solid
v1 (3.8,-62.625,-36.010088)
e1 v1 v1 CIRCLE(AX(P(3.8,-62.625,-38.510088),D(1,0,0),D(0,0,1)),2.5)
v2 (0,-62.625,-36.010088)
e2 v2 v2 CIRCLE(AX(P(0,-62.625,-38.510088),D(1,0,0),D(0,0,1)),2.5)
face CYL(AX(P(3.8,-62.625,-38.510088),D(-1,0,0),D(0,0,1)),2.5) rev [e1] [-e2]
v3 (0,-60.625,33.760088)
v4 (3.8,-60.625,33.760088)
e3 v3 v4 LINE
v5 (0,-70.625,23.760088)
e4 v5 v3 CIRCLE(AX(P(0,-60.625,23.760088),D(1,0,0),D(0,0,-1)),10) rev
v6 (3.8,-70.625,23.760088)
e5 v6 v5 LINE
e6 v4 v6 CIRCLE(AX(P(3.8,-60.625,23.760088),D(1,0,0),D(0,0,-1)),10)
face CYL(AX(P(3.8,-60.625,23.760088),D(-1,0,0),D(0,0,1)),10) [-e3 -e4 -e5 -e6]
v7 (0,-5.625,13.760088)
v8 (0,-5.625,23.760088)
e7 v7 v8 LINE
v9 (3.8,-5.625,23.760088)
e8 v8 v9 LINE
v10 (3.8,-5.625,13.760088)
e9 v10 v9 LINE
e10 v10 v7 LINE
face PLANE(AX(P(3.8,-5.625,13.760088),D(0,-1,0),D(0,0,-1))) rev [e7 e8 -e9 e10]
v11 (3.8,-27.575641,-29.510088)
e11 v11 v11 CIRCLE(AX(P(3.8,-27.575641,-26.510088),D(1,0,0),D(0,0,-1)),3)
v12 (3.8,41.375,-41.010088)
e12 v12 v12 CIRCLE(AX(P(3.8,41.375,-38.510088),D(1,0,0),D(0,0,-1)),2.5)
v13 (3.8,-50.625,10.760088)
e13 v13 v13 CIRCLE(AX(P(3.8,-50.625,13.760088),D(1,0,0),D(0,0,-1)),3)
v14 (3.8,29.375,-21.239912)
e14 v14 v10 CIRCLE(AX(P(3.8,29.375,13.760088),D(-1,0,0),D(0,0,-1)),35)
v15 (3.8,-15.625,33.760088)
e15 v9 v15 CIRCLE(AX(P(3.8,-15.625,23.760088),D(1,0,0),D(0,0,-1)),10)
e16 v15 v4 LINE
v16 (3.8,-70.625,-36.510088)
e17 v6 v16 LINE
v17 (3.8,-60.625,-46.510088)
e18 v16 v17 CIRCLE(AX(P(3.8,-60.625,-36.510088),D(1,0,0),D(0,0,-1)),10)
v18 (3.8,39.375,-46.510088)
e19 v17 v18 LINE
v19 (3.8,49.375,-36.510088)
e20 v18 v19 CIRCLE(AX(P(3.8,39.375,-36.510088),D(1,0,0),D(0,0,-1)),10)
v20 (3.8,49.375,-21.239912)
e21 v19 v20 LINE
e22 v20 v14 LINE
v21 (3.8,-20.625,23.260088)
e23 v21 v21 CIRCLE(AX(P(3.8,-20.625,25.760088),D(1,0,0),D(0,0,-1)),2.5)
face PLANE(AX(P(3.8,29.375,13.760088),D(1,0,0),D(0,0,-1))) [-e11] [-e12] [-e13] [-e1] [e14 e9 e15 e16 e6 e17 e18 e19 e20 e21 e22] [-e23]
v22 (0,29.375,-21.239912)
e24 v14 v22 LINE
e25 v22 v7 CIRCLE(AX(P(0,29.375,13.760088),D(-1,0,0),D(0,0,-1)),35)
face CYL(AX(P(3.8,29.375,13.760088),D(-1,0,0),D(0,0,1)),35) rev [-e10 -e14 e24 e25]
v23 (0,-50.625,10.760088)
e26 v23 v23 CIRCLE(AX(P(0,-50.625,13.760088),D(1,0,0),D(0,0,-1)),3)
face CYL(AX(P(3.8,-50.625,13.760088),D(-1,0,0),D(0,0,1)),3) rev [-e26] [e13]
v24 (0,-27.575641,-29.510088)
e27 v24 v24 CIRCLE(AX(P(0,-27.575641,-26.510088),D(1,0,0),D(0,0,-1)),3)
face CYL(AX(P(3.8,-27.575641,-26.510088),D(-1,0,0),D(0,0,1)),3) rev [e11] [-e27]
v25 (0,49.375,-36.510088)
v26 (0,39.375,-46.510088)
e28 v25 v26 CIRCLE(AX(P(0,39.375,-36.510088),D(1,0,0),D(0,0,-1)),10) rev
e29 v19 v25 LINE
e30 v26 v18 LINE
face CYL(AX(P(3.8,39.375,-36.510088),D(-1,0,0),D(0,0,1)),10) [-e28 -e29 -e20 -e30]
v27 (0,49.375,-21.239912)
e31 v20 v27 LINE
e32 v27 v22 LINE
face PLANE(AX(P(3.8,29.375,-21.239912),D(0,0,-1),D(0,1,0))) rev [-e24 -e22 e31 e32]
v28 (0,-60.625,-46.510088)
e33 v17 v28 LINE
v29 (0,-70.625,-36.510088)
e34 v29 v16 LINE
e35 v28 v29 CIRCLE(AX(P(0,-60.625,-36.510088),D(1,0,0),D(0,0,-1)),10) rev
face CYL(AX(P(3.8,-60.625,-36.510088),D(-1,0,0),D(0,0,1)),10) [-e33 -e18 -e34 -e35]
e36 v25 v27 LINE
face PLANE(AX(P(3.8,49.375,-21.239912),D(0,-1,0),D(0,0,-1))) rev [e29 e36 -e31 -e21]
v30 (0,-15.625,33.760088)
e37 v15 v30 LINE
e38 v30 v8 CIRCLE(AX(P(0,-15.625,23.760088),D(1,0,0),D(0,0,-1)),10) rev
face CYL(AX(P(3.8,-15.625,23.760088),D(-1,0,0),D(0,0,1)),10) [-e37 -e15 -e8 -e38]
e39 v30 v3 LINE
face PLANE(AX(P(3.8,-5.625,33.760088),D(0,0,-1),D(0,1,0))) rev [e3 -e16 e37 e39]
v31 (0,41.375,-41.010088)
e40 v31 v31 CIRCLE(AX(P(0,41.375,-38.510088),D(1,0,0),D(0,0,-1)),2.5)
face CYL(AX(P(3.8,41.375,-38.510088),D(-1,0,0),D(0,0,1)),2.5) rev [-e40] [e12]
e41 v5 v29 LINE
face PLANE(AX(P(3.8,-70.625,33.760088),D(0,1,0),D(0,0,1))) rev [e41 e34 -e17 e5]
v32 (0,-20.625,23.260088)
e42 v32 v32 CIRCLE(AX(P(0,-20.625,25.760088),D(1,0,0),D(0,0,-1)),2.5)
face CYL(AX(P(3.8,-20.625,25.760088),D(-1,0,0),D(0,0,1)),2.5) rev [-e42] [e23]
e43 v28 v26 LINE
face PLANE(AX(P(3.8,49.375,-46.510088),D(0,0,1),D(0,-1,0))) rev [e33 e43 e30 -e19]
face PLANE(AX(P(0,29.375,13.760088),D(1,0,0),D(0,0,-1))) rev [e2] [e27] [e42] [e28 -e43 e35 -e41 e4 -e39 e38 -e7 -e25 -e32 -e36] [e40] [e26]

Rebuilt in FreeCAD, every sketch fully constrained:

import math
import FreeCAD as App
import Part
import Sketcher
from FreeCAD import Vector


def edges_at(feature, points):
    """Names of the edges that pass closest to the given points."""
    edges = feature.Shape.Edges
    near = lambda p: min(range(len(edges)), key=lambda i: edges[i].distToShape(Part.Vertex(*p))[0])
    return sorted({f"Edge{near(p) + 1}" for p in points})

doc = App.newDocument("Part")
params = doc.addObject("Spreadsheet::Sheet", "Params")
for row, (alias, value) in enumerate([
    ("sketch1_diameter", "6 mm"),
    ("sketch1_diameter2", "5 mm"),
    ("sketch1_radius", "35 mm"),
    ("sketch1_width", "120 mm"),
    ("sketch1_width2", "20 mm"),
    ("pad1_length", "3.8 mm"),
    ("fillet_radius", "10 mm"),
], start=1):
    params.set(f"A{row}", alias)
    params.set(f"B{row}", "=" + value)
    params.setAlias(f"B{row}", alias)

body = doc.addObject("PartDesign::Body", "Body")

sketch1 = body.newObject("Sketcher::SketchObject", "Sketch")
sketch1.AttachmentSupport = (doc.getObject("YZ_Plane"), [""])
sketch1.MapMode = "FlatFace"
sketch1.addGeometry(Part.LineSegment(Vector(-70.625, 33.760088, 0), Vector(-70.625, -46.510088, 0)), False)
sketch1.addGeometry(Part.LineSegment(Vector(-70.625, -46.510088, 0), Vector(49.375, -46.510088, 0)), False)
sketch1.addGeometry(Part.LineSegment(Vector(49.375, -46.510088, 0), Vector(49.375, -21.239912, 0)), False)
sketch1.addGeometry(Part.LineSegment(Vector(49.375, -21.239912, 0), Vector(29.375, -21.239912, 0)), False)
sketch1.addGeometry(Part.ArcOfCircle(Part.Circle(Vector(29.375, 13.760088, 0), Vector(0, 0, 1), 35), math.radians(180), math.radians(270)), False)
sketch1.addGeometry(Part.LineSegment(Vector(-5.625, 13.760088, 0), Vector(-5.625, 33.760088, 0)), False)
sketch1.addGeometry(Part.LineSegment(Vector(-5.625, 33.760088, 0), Vector(-70.625, 33.760088, 0)), False)
sketch1.addGeometry(Part.Circle(Vector(-50.625, 13.760088, 0), Vector(0, 0, 1), 3), False)
sketch1.addGeometry(Part.Circle(Vector(-20.625, 25.760088, 0), Vector(0, 0, 1), 2.5), False)
sketch1.addGeometry(Part.Circle(Vector(-62.625, -38.510088, 0), Vector(0, 0, 1), 2.5), False)
sketch1.addGeometry(Part.Circle(Vector(-27.575641, -26.510088, 0), Vector(0, 0, 1), 3), False)
sketch1.addGeometry(Part.Circle(Vector(41.375, -38.510088, 0), Vector(0, 0, 1), 2.5), False)
sketch1.addConstraint(Sketcher.Constraint("Coincident", 0, 2, 1, 1))
sketch1.addConstraint(Sketcher.Constraint("Coincident", 1, 2, 2, 1))
sketch1.addConstraint(Sketcher.Constraint("Coincident", 2, 2, 3, 1))
sketch1.addConstraint(Sketcher.Constraint("Tangent", 3, 2, 4, 2))
sketch1.addConstraint(Sketcher.Constraint("Tangent", 4, 1, 5, 1))
sketch1.addConstraint(Sketcher.Constraint("Coincident", 5, 2, 6, 1))
sketch1.addConstraint(Sketcher.Constraint("Coincident", 6, 2, 0, 1))
sketch1.addConstraint(Sketcher.Constraint("Vertical", 0))
sketch1.addConstraint(Sketcher.Constraint("Horizontal", 1))
sketch1.addConstraint(Sketcher.Constraint("Vertical", 2))
sketch1.addConstraint(Sketcher.Constraint("Horizontal", 3))
sketch1.addConstraint(Sketcher.Constraint("Vertical", 5))
sketch1.addConstraint(Sketcher.Constraint("Horizontal", 6))
sketch1.addConstraint(Sketcher.Constraint("Equal", 8, 9))
sketch1.addConstraint(Sketcher.Constraint("Equal", 7, 10))
sketch1.addConstraint(Sketcher.Constraint("Equal", 9, 11))
sketch1.addConstraint(Sketcher.Constraint("Horizontal", 4, 3, 7, 3))
sketch1.addConstraint(Sketcher.Constraint("Horizontal", 9, 3, 11, 3))
sketch1.addConstraint(Sketcher.Constraint("Equal", 3, 5))
sketch1.addConstraint(Sketcher.Constraint("Diameter", 7, 6.0))
sketch1.addConstraint(Sketcher.Constraint("Diameter", 8, 5.0))
sketch1.addConstraint(Sketcher.Constraint("Radius", 4, 35.0))
sketch1.addConstraint(Sketcher.Constraint("DistanceX", 1, 1, 1, 2, 120.0))
sketch1.addConstraint(Sketcher.Constraint("DistanceX", 3, 2, 3, 1, 20.0))
sketch1.addConstraint(Sketcher.Constraint("DistanceX", 7, 3, 4, 3, 80.0))
sketch1.addConstraint(Sketcher.Constraint("DistanceX", 7, 3, 8, 3, 30.0))
sketch1.addConstraint(Sketcher.Constraint("DistanceY", 7, 3, 8, 3, 12.0))
sketch1.addConstraint(Sketcher.Constraint("DistanceX", 9, 3, 7, 3, 12.0))
sketch1.addConstraint(Sketcher.Constraint("DistanceY", 9, 3, 10, 3, 12.0))
sketch1.addConstraint(Sketcher.Constraint("DistanceX", 4, 3, 11, 3, 12.0))
sketch1.addConstraint(Sketcher.Constraint("DistanceY", 0, 2, 9, 3, 8.0))
sketch1.addConstraint(Sketcher.Constraint("DistanceX", -1, 1, 4, 3, 29.375))
sketch1.addConstraint(Sketcher.Constraint("DistanceY", 0, 2, 0, 1, 80.270175))
sketch1.addConstraint(Sketcher.Constraint("DistanceX", 10, 3, -1, 1, 27.575641))
sketch1.addConstraint(Sketcher.Constraint("DistanceY", -1, 1, 4, 3, 13.760088))
sketch1.setExpression("Constraints[19]", "Params.sketch1_diameter")
sketch1.setExpression("Constraints[20]", "Params.sketch1_diameter2")
sketch1.setExpression("Constraints[21]", "Params.sketch1_radius")
sketch1.setExpression("Constraints[22]", "Params.sketch1_width")
sketch1.setExpression("Constraints[23]", "Params.sketch1_width2")
pad1 = body.newObject("PartDesign::Pad", "Pad")
pad1.Profile = sketch1
pad1.setExpression("Length", "Params.pad1_length")
doc.recompute()

fillet = body.newObject("PartDesign::Fillet", "Fillet")
fillet.Base = (pad1, edges_at(pad1, [
    (1.9, -70.625, -46.51),
    (1.9, -70.625, 33.76),
    (1.9, -5.625, 33.76),
    (1.9, 49.375, -46.51),
]))
fillet.setExpression("Radius", "Params.fillet_radius")

doc.recompute()
